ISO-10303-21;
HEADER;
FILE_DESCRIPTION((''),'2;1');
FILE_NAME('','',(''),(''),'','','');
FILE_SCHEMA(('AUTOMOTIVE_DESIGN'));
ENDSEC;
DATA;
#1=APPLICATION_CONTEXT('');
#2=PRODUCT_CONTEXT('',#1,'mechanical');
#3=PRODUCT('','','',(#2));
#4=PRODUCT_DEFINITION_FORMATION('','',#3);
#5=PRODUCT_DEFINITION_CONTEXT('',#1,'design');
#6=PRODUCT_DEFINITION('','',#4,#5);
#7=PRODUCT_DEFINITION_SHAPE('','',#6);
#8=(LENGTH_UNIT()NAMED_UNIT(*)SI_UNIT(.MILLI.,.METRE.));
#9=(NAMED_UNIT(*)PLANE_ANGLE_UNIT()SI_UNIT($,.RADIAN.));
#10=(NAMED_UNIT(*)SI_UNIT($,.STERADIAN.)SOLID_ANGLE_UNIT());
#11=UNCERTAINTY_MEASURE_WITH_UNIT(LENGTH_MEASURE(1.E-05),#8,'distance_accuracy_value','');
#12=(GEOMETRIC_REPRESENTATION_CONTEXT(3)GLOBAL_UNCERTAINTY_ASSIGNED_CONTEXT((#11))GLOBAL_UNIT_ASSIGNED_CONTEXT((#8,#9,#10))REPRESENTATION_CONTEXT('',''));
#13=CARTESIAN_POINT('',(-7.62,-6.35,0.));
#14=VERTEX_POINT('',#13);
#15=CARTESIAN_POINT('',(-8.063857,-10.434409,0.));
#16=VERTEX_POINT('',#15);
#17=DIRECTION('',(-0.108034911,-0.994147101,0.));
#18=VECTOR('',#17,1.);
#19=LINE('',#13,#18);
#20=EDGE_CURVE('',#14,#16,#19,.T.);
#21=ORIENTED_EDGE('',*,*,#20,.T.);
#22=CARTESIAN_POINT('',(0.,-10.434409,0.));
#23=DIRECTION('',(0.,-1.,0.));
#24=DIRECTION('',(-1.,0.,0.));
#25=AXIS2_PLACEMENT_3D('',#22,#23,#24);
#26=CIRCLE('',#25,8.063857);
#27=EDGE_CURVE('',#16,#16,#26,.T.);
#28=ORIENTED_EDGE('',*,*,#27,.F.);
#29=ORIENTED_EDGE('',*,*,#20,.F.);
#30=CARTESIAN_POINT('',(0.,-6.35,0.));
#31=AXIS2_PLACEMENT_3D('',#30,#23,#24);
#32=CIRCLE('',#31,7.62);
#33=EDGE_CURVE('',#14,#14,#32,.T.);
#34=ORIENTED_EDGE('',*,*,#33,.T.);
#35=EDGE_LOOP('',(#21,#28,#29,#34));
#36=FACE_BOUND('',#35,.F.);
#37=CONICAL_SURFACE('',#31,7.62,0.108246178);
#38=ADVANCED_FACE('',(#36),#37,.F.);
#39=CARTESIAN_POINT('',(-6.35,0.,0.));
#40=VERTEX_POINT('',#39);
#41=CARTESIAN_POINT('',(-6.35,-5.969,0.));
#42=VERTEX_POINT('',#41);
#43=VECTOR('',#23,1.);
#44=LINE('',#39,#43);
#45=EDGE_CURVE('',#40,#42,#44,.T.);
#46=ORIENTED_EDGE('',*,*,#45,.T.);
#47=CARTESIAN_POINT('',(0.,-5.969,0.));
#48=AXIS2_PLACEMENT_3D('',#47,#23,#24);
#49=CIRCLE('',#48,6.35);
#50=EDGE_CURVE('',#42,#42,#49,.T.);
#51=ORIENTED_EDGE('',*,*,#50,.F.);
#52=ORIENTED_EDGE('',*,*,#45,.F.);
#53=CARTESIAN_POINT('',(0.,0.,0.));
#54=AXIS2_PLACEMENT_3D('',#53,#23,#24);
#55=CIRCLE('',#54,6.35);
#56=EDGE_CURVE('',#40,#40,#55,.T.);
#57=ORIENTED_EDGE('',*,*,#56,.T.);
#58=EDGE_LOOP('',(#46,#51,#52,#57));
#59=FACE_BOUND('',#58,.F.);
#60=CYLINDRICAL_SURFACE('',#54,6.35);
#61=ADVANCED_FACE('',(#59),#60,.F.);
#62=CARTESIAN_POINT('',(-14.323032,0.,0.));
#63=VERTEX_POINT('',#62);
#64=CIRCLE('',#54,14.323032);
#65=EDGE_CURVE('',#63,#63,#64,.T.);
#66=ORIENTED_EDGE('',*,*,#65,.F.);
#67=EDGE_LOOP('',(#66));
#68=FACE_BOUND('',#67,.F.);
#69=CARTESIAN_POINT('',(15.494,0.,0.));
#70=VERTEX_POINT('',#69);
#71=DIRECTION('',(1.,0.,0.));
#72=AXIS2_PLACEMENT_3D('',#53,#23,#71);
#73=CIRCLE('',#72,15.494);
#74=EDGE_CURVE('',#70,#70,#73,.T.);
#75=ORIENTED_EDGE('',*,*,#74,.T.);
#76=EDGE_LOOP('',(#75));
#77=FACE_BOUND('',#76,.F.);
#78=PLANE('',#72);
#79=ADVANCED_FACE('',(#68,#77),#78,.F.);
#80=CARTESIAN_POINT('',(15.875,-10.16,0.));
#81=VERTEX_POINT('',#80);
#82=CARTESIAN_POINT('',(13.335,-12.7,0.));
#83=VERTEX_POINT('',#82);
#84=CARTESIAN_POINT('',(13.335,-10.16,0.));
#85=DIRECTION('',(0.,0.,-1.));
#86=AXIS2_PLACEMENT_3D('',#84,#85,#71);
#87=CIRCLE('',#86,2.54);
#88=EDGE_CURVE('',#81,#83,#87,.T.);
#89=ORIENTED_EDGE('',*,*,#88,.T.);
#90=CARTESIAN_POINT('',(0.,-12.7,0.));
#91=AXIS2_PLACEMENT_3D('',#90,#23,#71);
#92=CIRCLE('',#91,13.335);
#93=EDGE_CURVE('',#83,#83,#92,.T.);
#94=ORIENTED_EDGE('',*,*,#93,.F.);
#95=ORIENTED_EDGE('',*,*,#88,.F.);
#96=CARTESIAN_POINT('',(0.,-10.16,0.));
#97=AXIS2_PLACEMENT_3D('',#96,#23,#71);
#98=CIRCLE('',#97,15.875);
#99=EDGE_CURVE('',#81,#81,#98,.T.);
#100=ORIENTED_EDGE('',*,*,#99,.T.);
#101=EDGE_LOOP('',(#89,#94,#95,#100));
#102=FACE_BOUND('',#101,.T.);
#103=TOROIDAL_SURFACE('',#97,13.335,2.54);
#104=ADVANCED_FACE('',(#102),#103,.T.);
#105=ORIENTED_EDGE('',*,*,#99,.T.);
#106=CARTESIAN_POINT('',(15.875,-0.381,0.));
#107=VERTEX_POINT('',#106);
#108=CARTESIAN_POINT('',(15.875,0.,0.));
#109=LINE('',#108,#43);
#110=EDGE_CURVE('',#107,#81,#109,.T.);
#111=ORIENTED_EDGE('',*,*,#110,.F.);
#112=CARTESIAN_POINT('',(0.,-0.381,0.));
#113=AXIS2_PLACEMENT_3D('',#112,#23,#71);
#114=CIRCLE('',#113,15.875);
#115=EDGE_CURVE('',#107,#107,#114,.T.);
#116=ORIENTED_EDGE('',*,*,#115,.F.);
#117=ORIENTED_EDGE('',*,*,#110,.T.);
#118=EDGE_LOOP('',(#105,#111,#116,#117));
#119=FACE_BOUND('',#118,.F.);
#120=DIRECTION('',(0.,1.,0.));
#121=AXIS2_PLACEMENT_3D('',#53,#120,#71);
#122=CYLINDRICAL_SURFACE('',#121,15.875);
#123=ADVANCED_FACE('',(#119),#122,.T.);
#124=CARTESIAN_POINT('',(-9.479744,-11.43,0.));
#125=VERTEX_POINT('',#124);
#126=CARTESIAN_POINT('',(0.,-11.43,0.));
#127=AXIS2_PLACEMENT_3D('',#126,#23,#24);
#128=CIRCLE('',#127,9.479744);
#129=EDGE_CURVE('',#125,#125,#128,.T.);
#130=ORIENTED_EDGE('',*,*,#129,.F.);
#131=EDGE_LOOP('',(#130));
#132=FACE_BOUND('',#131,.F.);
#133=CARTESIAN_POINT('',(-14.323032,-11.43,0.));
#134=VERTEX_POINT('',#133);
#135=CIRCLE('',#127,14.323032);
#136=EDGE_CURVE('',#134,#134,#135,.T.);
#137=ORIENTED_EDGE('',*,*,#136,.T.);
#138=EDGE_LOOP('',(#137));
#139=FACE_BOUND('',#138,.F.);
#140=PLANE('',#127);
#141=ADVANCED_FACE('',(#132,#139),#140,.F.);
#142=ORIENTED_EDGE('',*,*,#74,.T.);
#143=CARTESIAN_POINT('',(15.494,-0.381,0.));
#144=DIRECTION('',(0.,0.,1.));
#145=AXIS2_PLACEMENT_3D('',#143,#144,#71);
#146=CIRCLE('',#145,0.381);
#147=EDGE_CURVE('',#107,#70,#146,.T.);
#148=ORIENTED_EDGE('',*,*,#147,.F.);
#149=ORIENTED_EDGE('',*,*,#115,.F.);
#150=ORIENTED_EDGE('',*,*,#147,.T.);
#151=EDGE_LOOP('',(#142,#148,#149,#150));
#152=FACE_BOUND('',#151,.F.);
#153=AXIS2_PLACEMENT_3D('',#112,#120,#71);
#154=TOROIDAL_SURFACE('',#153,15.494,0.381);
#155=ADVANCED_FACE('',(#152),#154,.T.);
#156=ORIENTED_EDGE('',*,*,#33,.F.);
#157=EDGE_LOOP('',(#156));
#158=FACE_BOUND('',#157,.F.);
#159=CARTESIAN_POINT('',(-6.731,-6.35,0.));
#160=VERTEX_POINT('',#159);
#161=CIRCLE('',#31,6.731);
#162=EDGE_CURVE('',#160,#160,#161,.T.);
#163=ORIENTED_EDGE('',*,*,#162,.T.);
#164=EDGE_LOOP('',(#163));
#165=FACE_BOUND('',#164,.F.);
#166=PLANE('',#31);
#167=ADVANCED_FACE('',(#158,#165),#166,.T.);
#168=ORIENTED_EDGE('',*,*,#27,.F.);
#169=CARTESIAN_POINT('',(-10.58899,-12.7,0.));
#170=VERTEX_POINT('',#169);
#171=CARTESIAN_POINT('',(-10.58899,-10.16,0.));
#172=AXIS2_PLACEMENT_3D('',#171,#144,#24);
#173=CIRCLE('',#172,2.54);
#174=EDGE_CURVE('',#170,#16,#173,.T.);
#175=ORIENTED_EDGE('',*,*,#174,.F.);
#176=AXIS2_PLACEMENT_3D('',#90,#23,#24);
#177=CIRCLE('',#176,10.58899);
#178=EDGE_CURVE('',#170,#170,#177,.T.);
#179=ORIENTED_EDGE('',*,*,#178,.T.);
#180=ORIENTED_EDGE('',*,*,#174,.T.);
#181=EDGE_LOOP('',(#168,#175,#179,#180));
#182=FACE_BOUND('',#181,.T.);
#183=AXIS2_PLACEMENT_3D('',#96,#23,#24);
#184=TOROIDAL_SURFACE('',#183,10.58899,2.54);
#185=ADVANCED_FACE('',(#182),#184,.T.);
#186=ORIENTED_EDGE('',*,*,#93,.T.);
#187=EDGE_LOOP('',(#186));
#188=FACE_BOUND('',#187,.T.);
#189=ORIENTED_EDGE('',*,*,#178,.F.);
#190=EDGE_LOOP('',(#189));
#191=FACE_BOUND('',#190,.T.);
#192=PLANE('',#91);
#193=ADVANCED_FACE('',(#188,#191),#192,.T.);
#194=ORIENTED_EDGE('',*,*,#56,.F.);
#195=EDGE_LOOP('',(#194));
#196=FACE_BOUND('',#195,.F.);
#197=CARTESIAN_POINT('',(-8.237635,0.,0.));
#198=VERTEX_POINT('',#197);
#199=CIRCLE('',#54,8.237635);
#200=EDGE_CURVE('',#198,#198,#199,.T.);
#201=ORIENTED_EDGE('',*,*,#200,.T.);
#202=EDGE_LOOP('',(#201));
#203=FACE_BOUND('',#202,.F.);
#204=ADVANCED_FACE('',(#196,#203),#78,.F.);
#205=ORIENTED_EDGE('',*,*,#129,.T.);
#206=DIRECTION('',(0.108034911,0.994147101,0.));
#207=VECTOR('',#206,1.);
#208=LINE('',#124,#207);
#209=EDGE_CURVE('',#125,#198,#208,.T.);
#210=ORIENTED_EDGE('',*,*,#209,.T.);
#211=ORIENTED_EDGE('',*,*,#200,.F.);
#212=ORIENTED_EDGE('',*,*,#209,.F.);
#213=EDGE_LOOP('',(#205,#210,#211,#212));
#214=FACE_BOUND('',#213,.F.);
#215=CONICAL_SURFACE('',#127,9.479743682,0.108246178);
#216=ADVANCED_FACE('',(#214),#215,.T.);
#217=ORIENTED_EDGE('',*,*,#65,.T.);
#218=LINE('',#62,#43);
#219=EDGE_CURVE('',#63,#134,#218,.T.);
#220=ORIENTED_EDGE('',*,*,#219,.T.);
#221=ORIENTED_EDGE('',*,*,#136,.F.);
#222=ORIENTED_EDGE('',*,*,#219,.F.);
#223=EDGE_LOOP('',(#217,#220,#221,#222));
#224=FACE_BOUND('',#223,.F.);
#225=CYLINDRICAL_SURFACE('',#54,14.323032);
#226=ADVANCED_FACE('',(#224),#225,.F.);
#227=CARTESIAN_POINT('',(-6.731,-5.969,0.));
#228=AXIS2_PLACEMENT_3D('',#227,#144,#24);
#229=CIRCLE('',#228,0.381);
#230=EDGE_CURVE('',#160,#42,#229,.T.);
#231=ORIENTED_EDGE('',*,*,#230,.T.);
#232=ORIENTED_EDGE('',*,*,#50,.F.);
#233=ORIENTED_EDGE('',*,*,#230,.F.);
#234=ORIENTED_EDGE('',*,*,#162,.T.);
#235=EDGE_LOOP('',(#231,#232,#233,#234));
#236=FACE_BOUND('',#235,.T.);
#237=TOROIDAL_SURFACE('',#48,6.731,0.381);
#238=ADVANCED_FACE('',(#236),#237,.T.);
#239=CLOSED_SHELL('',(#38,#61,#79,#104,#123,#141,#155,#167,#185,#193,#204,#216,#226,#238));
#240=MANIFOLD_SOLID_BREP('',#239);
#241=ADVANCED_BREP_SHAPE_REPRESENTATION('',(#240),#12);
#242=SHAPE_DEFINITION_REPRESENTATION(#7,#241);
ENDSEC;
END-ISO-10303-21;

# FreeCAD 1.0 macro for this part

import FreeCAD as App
import Part
import Sketcher
Q = App.Units.Quantity


def edges_at(feature, points):
    """Names of the edges that pass closest to the given points."""
    edges = feature.Shape.Edges
    near = lambda p: min(range(len(edges)), key=lambda i: edges[i].distToShape(Part.Vertex(*p))[0])
    return sorted({f"Edge{near(p) + 1}" for p in points})


def add_polygon(sketch, points):
    """Adds a closed chain of lines whose ends are joined by coincident constraints."""
    first, n = sketch.GeometryCount, len(points)
    for a, b in zip(points, points[1:] + points[:1]):
        sketch.addGeometry(Part.LineSegment(App.Vector(*a, 0), App.Vector(*b, 0)), False)
    for i in range(n):
        sketch.addConstraint(Sketcher.Constraint("Coincident", first + i, 2, first + (i + 1) % n, 1))

doc = App.newDocument("Part")
body = doc.addObject("PartDesign::Body", "Body")

sketch1 = doc.addObject("Sketcher::SketchObject", "Sketch")
body.addObject(sketch1)
sketch1.AttachmentSupport = (doc.XZ_Plane, [""])
sketch1.MapMode = "FlatFace"
sketch1.addGeometry(Part.Circle(App.Vector(0, 0, 0), App.Vector(0, 0, 1), 16), False)
sketch1.addConstraint(Sketcher.Constraint("Coincident", 0, 3, -1, 1))
sketch1.addConstraint(Sketcher.Constraint("Diameter", 0, Q("1.25 in")))
pad1 = doc.addObject("PartDesign::Pad", "Pad")
body.addObject(pad1)
pad1.Profile = sketch1
pad1.Length = Q("0.5 in")

sketch2 = doc.addObject("Sketcher::SketchObject", "Sketch001")
body.addObject(sketch2)
sketch2.AttachmentSupport = (doc.XY_Plane, [""])
sketch2.MapMode = "FlatFace"
add_polygon(sketch2, [(0, -12.7), (0, 0), (-6.3, 0), (-6.3, -6.3), (-7.6, -6.3), (-8.3, -12.7)])
add_polygon(sketch2, [(-9.5, -11.4), (-8.2, 0), (-14.3, 0), (-14.3, -11.4)])
sketch2.addConstraint(Sketcher.Constraint("Vertical", 0))
sketch2.addConstraint(Sketcher.Constraint("Horizontal", 1))
sketch2.addConstraint(Sketcher.Constraint("Vertical", 2))
sketch2.addConstraint(Sketcher.Constraint("Horizontal", 3))
sketch2.addConstraint(Sketcher.Constraint("Horizontal", 5))
sketch2.addConstraint(Sketcher.Constraint("Horizontal", 7))
sketch2.addConstraint(Sketcher.Constraint("Vertical", 8))
sketch2.addConstraint(Sketcher.Constraint("Horizontal", 9))
sketch2.addConstraint(Sketcher.Constraint("Coincident", 0, 2, -1, 1))
sketch2.addConstraint(Sketcher.Constraint("PointOnObject", 6, 2, -1))
sketch2.addConstraint(Sketcher.Constraint("Parallel", 4, 6))
sketch2.addConstraint(Sketcher.Constraint("Equal", 1, 2))
sketch2.addConstraint(Sketcher.Constraint("DistanceY", 0, 1, 0, 2, Q("0.5 in")))
sketch2.addConstraint(Sketcher.Constraint("DistanceX", 1, 2, 1, 1, Q("0.25 in")))
sketch2.addConstraint(Sketcher.Constraint("DistanceX", 3, 2, 3, 1, Q("0.05 in")))
sketch2.addConstraint(Sketcher.Constraint("DistanceY", 8, 2, 8, 1, Q("0.45 in")))
sketch2.addConstraint(Sketcher.Constraint("DistanceX", 5, 1, 5, 2, 8.310061))
sketch2.addConstraint(Sketcher.Constraint("DistanceX", 7, 2, 7, 1, 6.085397))
sketch2.addConstraint(Sketcher.Constraint("DistanceX", 7, 2, -1, 1, 14.323032))
groove = doc.addObject("PartDesign::Groove", "Groove")
body.addObject(groove)
groove.Profile = sketch2
groove.ReferenceAxis = (sketch2, ["V_Axis"])
groove.Angle = 360
doc.recompute()

fillet = doc.addObject("PartDesign::Fillet", "Fillet")
body.addObject(fillet)
fillet.Base = (groove, edges_at(groove, [(-15.875, -12.7, 0), (8.31, -12.7, 0)]))
fillet.Radius = Q("0.1 in")
doc.recompute()

fillet2 = doc.addObject("PartDesign::Fillet", "Fillet001")
body.addObject(fillet2)
fillet2.Base = (fillet, edges_at(fillet, [(-15.875, 0, 0), (6.35, -6.35, 0)]))
fillet2.Radius = Q("0.015 in")

doc.recompute()
